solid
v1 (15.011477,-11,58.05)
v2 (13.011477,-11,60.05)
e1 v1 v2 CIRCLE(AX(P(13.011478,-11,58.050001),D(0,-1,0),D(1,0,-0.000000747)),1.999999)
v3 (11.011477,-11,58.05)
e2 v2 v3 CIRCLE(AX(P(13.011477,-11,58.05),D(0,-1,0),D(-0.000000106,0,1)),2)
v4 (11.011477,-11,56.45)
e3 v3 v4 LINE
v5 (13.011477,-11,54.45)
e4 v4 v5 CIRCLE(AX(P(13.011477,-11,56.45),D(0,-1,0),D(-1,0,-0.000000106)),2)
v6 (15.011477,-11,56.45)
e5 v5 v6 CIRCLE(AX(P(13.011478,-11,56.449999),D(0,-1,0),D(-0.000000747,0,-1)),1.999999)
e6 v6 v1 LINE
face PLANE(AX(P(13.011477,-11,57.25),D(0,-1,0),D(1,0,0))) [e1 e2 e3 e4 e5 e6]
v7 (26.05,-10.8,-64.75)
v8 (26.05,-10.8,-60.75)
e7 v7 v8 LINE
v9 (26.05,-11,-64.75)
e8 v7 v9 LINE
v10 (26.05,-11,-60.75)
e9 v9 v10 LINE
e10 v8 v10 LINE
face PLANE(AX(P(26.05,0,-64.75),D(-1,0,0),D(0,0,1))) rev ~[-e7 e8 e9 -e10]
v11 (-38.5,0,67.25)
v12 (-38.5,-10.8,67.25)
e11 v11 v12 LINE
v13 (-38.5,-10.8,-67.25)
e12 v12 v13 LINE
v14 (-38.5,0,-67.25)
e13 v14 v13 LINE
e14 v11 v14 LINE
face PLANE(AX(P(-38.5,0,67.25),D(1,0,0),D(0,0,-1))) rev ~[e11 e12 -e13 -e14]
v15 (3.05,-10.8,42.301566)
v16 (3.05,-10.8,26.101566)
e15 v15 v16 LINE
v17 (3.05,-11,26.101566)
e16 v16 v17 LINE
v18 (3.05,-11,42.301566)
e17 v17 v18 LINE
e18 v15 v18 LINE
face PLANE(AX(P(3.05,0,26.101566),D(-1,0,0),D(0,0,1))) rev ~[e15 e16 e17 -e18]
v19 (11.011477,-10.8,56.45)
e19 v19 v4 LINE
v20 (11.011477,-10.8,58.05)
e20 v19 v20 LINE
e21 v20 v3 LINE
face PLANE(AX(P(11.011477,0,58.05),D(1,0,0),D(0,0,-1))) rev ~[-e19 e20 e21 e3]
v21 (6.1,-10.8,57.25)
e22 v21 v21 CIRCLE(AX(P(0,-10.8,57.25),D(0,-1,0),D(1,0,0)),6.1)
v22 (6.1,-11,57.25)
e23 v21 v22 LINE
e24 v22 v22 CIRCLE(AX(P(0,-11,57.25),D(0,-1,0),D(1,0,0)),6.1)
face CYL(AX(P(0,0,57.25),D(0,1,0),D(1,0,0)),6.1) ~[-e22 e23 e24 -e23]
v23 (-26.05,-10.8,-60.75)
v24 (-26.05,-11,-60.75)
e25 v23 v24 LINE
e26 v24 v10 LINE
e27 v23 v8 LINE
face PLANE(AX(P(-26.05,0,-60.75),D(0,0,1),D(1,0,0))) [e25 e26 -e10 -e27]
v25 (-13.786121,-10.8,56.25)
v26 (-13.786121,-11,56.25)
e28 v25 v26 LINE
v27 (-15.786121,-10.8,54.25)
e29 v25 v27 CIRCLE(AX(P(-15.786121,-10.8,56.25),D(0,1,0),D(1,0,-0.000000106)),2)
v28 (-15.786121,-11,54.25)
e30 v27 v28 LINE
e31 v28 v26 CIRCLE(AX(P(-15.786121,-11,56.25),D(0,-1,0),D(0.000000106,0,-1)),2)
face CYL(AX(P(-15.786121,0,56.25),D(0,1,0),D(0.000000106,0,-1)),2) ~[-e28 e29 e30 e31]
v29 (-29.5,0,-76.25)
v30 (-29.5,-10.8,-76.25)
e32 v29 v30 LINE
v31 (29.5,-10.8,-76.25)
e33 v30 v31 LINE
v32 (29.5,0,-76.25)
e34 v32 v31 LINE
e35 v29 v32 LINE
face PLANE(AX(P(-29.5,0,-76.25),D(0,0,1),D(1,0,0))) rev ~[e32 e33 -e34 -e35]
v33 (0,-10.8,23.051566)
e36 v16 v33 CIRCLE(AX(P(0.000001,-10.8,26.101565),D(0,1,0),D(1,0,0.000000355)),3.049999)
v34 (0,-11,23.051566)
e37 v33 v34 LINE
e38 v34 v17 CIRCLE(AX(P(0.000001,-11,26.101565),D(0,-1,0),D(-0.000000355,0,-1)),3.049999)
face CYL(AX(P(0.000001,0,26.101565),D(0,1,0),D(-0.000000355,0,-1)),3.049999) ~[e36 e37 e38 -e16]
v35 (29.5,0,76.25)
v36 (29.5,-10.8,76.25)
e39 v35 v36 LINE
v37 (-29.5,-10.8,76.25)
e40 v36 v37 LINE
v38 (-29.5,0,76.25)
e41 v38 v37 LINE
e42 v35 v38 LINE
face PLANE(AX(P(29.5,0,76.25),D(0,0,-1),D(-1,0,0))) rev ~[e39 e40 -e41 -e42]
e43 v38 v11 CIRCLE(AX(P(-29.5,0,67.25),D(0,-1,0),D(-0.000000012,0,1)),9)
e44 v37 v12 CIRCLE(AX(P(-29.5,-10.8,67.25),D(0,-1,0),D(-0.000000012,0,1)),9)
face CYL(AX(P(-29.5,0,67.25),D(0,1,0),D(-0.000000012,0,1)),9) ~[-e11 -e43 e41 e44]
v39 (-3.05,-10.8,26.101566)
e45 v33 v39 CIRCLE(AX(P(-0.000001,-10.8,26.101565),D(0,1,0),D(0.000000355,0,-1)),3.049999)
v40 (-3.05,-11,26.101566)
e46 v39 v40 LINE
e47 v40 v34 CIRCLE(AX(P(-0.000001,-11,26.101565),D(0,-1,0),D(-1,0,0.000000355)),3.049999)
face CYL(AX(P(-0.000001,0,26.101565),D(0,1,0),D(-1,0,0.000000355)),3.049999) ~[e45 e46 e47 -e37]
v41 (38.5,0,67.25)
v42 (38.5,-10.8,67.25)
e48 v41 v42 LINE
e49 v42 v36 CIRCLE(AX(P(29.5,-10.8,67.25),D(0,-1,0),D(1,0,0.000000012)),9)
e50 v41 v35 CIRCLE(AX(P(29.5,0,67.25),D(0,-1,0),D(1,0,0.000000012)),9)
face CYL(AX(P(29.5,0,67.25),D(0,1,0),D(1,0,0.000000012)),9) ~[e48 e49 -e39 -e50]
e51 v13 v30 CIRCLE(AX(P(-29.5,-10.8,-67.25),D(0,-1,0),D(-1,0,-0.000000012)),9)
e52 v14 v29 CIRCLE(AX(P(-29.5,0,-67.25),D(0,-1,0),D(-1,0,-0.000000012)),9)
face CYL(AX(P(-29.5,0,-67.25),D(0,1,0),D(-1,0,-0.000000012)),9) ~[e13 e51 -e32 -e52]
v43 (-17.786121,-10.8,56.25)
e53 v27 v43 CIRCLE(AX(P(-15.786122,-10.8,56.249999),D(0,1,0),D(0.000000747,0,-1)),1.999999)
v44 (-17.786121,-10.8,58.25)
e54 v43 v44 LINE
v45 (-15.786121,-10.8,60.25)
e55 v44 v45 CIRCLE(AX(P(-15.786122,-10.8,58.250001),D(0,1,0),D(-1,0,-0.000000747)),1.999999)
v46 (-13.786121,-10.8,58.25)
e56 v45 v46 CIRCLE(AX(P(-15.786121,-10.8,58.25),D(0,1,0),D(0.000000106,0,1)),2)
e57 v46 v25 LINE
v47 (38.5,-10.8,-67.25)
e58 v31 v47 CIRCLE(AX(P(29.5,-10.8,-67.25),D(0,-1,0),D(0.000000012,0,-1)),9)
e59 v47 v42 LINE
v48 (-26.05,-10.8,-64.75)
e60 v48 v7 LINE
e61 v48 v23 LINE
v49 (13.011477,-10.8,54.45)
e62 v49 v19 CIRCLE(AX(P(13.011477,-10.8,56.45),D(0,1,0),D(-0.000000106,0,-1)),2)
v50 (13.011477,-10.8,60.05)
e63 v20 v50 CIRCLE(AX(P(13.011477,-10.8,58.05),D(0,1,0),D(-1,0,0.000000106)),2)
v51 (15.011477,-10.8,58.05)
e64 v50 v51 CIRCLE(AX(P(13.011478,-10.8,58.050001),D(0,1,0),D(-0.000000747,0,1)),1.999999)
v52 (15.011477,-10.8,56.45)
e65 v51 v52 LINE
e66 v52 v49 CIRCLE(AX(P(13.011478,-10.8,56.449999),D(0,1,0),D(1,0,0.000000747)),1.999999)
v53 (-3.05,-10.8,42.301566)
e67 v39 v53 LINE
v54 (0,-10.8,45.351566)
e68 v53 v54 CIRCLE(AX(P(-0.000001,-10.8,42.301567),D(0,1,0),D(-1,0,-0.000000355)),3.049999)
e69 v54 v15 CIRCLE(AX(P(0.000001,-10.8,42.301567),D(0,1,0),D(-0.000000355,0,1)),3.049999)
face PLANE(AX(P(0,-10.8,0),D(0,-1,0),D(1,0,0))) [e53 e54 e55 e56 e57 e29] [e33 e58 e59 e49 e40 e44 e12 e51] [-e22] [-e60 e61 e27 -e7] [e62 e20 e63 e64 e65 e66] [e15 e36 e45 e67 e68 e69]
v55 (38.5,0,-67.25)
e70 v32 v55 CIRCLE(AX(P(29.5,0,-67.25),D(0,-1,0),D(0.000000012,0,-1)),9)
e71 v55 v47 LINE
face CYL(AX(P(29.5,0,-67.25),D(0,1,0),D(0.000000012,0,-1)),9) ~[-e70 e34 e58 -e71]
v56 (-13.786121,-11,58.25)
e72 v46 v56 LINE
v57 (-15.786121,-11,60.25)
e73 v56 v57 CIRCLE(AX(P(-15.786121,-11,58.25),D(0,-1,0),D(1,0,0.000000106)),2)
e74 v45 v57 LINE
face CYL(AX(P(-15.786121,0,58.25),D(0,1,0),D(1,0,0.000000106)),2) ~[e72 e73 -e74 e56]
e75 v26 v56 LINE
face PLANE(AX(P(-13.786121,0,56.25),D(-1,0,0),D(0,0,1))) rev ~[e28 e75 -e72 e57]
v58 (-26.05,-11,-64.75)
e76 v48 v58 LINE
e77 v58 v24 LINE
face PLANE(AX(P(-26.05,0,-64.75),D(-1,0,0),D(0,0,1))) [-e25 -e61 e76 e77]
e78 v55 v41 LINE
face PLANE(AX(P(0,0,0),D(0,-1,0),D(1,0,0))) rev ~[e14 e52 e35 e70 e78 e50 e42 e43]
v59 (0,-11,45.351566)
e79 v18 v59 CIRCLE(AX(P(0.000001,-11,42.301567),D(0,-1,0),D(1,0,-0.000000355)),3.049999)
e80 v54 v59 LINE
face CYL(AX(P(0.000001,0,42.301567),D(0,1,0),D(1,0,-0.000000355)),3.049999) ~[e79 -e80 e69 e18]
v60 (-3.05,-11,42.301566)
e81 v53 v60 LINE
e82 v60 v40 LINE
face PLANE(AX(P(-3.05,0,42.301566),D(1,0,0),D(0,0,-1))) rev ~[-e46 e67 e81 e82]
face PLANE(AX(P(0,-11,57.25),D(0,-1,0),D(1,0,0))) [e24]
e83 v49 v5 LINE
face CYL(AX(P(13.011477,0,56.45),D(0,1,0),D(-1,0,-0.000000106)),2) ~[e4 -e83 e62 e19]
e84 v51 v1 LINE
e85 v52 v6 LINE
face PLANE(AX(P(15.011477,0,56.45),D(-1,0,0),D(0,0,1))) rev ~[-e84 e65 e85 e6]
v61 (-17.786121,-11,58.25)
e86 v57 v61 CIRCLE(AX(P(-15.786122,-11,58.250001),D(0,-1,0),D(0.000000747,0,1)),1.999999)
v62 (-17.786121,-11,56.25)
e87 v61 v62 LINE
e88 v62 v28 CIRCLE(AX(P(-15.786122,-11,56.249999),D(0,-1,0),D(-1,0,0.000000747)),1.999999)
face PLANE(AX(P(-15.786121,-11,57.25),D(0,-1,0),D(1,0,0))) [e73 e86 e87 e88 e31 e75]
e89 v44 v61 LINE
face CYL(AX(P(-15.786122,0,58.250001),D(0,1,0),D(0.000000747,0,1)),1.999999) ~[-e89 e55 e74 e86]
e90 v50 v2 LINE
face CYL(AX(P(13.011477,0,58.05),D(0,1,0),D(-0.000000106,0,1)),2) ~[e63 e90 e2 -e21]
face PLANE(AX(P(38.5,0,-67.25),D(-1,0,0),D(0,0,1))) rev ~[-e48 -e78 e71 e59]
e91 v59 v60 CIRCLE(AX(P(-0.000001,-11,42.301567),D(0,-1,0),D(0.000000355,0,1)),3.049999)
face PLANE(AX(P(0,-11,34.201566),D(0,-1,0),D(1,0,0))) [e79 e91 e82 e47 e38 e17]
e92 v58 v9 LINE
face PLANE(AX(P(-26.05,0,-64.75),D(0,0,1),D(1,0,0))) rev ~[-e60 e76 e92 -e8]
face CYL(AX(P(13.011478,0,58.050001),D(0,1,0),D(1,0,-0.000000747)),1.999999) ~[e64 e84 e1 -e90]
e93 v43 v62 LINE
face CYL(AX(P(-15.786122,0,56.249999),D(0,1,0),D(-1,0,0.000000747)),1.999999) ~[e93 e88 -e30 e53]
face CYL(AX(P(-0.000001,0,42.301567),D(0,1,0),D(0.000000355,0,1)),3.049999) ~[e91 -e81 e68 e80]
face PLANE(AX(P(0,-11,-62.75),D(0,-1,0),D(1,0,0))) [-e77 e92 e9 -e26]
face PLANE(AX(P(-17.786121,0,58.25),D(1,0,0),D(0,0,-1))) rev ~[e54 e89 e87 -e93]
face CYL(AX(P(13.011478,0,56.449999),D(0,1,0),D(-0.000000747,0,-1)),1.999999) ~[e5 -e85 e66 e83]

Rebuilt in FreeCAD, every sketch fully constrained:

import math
import FreeCAD as App
import Part
import Sketcher
from FreeCAD import Vector


def add_polygon(sketch, points):
    """Adds a closed chain of lines whose ends are joined by coincident constraints."""
    first, n = sketch.GeometryCount, len(points)
    for a, b in zip(points, points[1:] + points[:1]):
        sketch.addGeometry(Part.LineSegment(App.Vector(*a, 0), App.Vector(*b, 0)), False)
    for i in range(n):
        sketch.addConstraint(Sketcher.Constraint("Coincident", first + i, 2, first + (i + 1) % n, 1))

doc = App.newDocument("Part")
body = doc.addObject("PartDesign::Body", "Body")

# Sketch on XZ plane
sketch1 = body.newObject("Sketcher::SketchObject", "Sketch")
sketch1.AttachmentSupport = (doc.getObject("XZ_Plane"), [""])
sketch1.MapMode = "FlatFace"
sketch1.addGeometry(Part.LineSegment(Vector(-29.5, -76.2, 0), Vector(29.5, -76.2, 0)), False)  # 0
sketch1.addGeometry(Part.ArcOfCircle(Part.Circle(Vector(29.5, -67.2, 0), Vector(0, 0, 1), 9), math.radians(-90), math.radians(0)), False)  # 1
sketch1.addGeometry(Part.LineSegment(Vector(38.5, -67.2, 0), Vector(38.5, 67.2, 0)), False)  # 2
sketch1.addGeometry(Part.ArcOfCircle(Part.Circle(Vector(29.5, 67.2, 0), Vector(0, 0, 1), 9), math.radians(0), math.radians(90)), False)  # 3
sketch1.addGeometry(Part.LineSegment(Vector(29.5, 76.2, 0), Vector(-29.5, 76.2, 0)), False)  # 4
sketch1.addGeometry(Part.ArcOfCircle(Part.Circle(Vector(-29.5, 67.2, 0), Vector(0, 0, 1), 9), math.radians(90), math.radians(180)), False)  # 5
sketch1.addGeometry(Part.LineSegment(Vector(-38.5, 67.2, 0), Vector(-38.5, -67.2, 0)), False)  # 6
sketch1.addGeometry(Part.ArcOfCircle(Part.Circle(Vector(-29.5, -67.2, 0), Vector(0, 0, 1), 9), math.radians(-180), math.radians(-90)), False)  # 7
add_polygon(sketch1, [(26.1, -64.8), (-26.1, -64.8), (-26.1, -60.8), (26.1, -60.8)])  # lines 8-11
sketch1.addGeometry(Part.ArcOfCircle(Part.Circle(Vector(-15.8, 58.2, 0), Vector(0, 0, 1), 2), math.radians(0), math.radians(90)), False)  # 12
sketch1.addGeometry(Part.LineSegment(Vector(-13.8, 58.2, 0), Vector(-13.8, 56.2, 0)), False)  # 13
sketch1.addGeometry(Part.ArcOfCircle(Part.Circle(Vector(-15.8, 56.3, 0), Vector(0, 0, 1), 2), math.radians(-90), math.radians(0)), False)  # 14
sketch1.addGeometry(Part.ArcOfCircle(Part.Circle(Vector(-15.8, 56.2, 0), Vector(0, 0, 1), 2), math.radians(180), math.radians(270)), False)  # 15
sketch1.addGeometry(Part.LineSegment(Vector(-17.8, 56.2, 0), Vector(-17.8, 58.2, 0)), False)  # 16
sketch1.addGeometry(Part.ArcOfCircle(Part.Circle(Vector(-15.8, 58.3, 0), Vector(0, 0, 1), 2), math.radians(90), math.radians(180)), False)  # 17
sketch1.addGeometry(Part.ArcOfCircle(Part.Circle(Vector(0, 42.3, 0), Vector(0, 0, 1), 3), math.radians(0), math.radians(90)), False)  # 18
sketch1.addGeometry(Part.LineSegment(Vector(3, 42.3, 0), Vector(3, 26.1, 0)), False)  # 19
sketch1.addGeometry(Part.ArcOfCircle(Part.Circle(Vector(0, 26.1, 0), Vector(0, 0, 1), 3), math.radians(-90), math.radians(0)), False)  # 20
sketch1.addGeometry(Part.ArcOfCircle(Part.Circle(Vector(0, 26.1, 0), Vector(0, 0, 1), 3), math.radians(180), math.radians(270)), False)  # 21
sketch1.addGeometry(Part.LineSegment(Vector(-3, 26.1, 0), Vector(-3, 42.3, 0)), False)  # 22
sketch1.addGeometry(Part.ArcOfCircle(Part.Circle(Vector(0, 42.3, 0), Vector(0, 0, 1), 3), math.radians(90), math.radians(180)), False)  # 23
sketch1.addGeometry(Part.Circle(Vector(0, 57.2, 0), Vector(0, 0, 1), 6.1), False)  # 24
sketch1.addGeometry(Part.ArcOfCircle(Part.Circle(Vector(13, 58.1, 0), Vector(0, 0, 1), 2), math.radians(0), math.radians(90)), False)  # 25
sketch1.addGeometry(Part.LineSegment(Vector(15, 58, 0), Vector(15, 56.5, 0)), False)  # 26
sketch1.addGeometry(Part.ArcOfCircle(Part.Circle(Vector(13, 56.4, 0), Vector(0, 0, 1), 2), math.radians(-90), math.radians(0)), False)  # 27
sketch1.addGeometry(Part.ArcOfCircle(Part.Circle(Vector(13, 56.5, 0), Vector(0, 0, 1), 2), math.radians(-180), math.radians(-90)), False)  # 28
sketch1.addGeometry(Part.LineSegment(Vector(11, 56.5, 0), Vector(11, 58, 0)), False)  # 29
sketch1.addGeometry(Part.ArcOfCircle(Part.Circle(Vector(13, 58, 0), Vector(0, 0, 1), 2), math.radians(90), math.radians(180)), False)  # 30
sketch1.addConstraint([
    Sketcher.Constraint("Tangent", 0, 2, 1, 1),
    Sketcher.Constraint("Tangent", 1, 2, 2, 1),
    Sketcher.Constraint("Tangent", 2, 2, 3, 1),
    Sketcher.Constraint("Tangent", 3, 2, 4, 1),
    Sketcher.Constraint("Tangent", 4, 2, 5, 1),
    Sketcher.Constraint("Tangent", 5, 2, 6, 1),
    Sketcher.Constraint("Tangent", 6, 2, 7, 1),
    Sketcher.Constraint("Tangent", 7, 2, 0, 1),
    Sketcher.Constraint("Tangent", 12, 1, 13, 1),
    Sketcher.Constraint("Tangent", 13, 2, 14, 2),
    Sketcher.Constraint("Tangent", 14, 1, 15, 2),
    Sketcher.Constraint("Tangent", 15, 1, 16, 1),
    Sketcher.Constraint("Tangent", 16, 2, 17, 2),
    Sketcher.Constraint("Tangent", 17, 1, 12, 2),
    Sketcher.Constraint("Tangent", 18, 1, 19, 1),
    Sketcher.Constraint("Tangent", 19, 2, 20, 2),
    Sketcher.Constraint("Tangent", 20, 1, 21, 2),
    Sketcher.Constraint("Tangent", 21, 1, 22, 1),
    Sketcher.Constraint("Tangent", 22, 2, 23, 2),
    Sketcher.Constraint("Tangent", 23, 1, 18, 2),
    Sketcher.Constraint("Tangent", 25, 1, 26, 1),
    Sketcher.Constraint("Tangent", 26, 2, 27, 2),
    Sketcher.Constraint("Tangent", 27, 1, 28, 2),
    Sketcher.Constraint("Tangent", 28, 1, 29, 1),
    Sketcher.Constraint("Tangent", 29, 2, 30, 2),
    Sketcher.Constraint("Tangent", 30, 1, 25, 2),
    Sketcher.Constraint("Horizontal", 0),
    Sketcher.Constraint("Vertical", 2),
    Sketcher.Constraint("Horizontal", 4),
    Sketcher.Constraint("Vertical", 6),
    Sketcher.Constraint("Horizontal", 8),
    Sketcher.Constraint("Vertical", 9),
    Sketcher.Constraint("Horizontal", 10),
    Sketcher.Constraint("Vertical", 11),
    Sketcher.Constraint("Vertical", 13),
    Sketcher.Constraint("Vertical", 16),
    Sketcher.Constraint("Vertical", 19),
    Sketcher.Constraint("Vertical", 22),
    Sketcher.Constraint("Vertical", 26),
    Sketcher.Constraint("Vertical", 29),
    Sketcher.Constraint("Equal", 1, 3),
    Sketcher.Constraint("Equal", 3, 5),
    Sketcher.Constraint("Equal", 5, 7),
    Sketcher.Constraint("Equal", 12, 14),
    Sketcher.Constraint("Equal", 14, 15),
    Sketcher.Constraint("Equal", 18, 20),
    Sketcher.Constraint("Equal", 20, 21),
    Sketcher.Constraint("Equal", 17, 25),
    Sketcher.Constraint("Equal", 25, 27),
    Sketcher.Constraint("Equal", 27, 28),
    Sketcher.Constraint("Symmetric", 1, 3, 5, 3, -1, 1),
    Sketcher.Constraint("PointOnObject", 18, 3, -2),
    Sketcher.Constraint("PointOnObject", 24, 3, -2),
    Sketcher.Constraint("PointOnObject", 20, 1, -2),
    Sketcher.Constraint("PointOnObject", 23, 1, -2),
    Sketcher.Constraint("Vertical", 17, 3, 14, 1),
    Sketcher.Constraint("Vertical", 14, 1, 17, 1),
    Sketcher.Constraint("Vertical", 30, 3, 27, 1),
    Sketcher.Constraint("Vertical", 27, 1, 30, 1),
    Sketcher.Constraint("Radius", 1, 9.0),
    Sketcher.Constraint("Radius", 12, 2.0),
    Sketcher.Constraint("Diameter", 24, 12.2),
    Sketcher.Constraint("DistanceX", 0, 1, 0, 2, 59.0),
    Sketcher.Constraint("DistanceY", 9, 1, 9, 2, 4.0),
    Sketcher.Constraint("DistanceY", 13, 2, 13, 1, 2.0),
    Sketcher.Constraint("Radius", 18, 3.049999),
    Sketcher.Constraint("DistanceX", 8, 2, 8, 1, 52.1),
    Sketcher.Constraint("DistanceY", 2, 1, 2, 2, 134.5),
    Sketcher.Constraint("DistanceY", 19, 2, 19, 1, 16.2),
    Sketcher.Constraint("DistanceY", 26, 2, 26, 1, 1.6),
    Sketcher.Constraint("DistanceY", 12, 3, 5, 3, 9.0),
    Sketcher.Constraint("DistanceY", 24, 3, 12, 3, 1.0),
    Sketcher.Constraint("DistanceY", 24, 3, 25, 3, 0.800001),
    Sketcher.Constraint("DistanceY", 7, 3, 8, 2, 2.5),
    Sketcher.Constraint("DistanceX", 8, 2, -1, 1, 26.05),
    Sketcher.Constraint("DistanceX", 12, 3, 25, 3, 28.7976),
    Sketcher.Constraint("DistanceX", 12, 3, -1, 1, 15.786121),
    Sketcher.Constraint("DistanceY", 18, 3, 15, 3, 13.948431),
])
pad1 = body.newObject("PartDesign::Pad", "Pad")
pad1.Profile = sketch1
pad1.Length = 10.8

# Sketch on XZ plane
sketch2 = body.newObject("Sketcher::SketchObject", "Sketch001")
sketch2.AttachmentSupport = (doc.getObject("XZ_Plane"), [""])
sketch2.MapMode = "FlatFace"
sketch2.addGeometry(Part.Circle(Vector(0, 57.2, 0), Vector(0, 0, 1), 6.1), False)  # 0
sketch2.addGeometry(Part.ArcOfCircle(Part.Circle(Vector(-15.8, 56.3, 0), Vector(0, 0, 1), 2), math.radians(-90), math.radians(0)), False)  # 1
sketch2.addGeometry(Part.LineSegment(Vector(-13.8, 56.2, 0), Vector(-13.8, 58.2, 0)), False)  # 2
sketch2.addGeometry(Part.ArcOfCircle(Part.Circle(Vector(-15.8, 58.2, 0), Vector(0, 0, 1), 2), math.radians(0), math.radians(90)), False)  # 3
sketch2.addGeometry(Part.ArcOfCircle(Part.Circle(Vector(-15.8, 58.3, 0), Vector(0, 0, 1), 2), math.radians(90), math.radians(180)), False)  # 4
sketch2.addGeometry(Part.LineSegment(Vector(-17.8, 58.2, 0), Vector(-17.8, 56.2, 0)), False)  # 5
sketch2.addGeometry(Part.ArcOfCircle(Part.Circle(Vector(-15.8, 56.2, 0), Vector(0, 0, 1), 2), math.radians(180), math.radians(270)), False)  # 6
sketch2.addGeometry(Part.ArcOfCircle(Part.Circle(Vector(13, 56.4, 0), Vector(0, 0, 1), 2), math.radians(-90), math.radians(0)), False)  # 7
sketch2.addGeometry(Part.LineSegment(Vector(15, 56.5, 0), Vector(15, 58, 0)), False)  # 8
sketch2.addGeometry(Part.ArcOfCircle(Part.Circle(Vector(13, 58.1, 0), Vector(0, 0, 1), 2), math.radians(0), math.radians(90)), False)  # 9
sketch2.addGeometry(Part.ArcOfCircle(Part.Circle(Vector(13, 58, 0), Vector(0, 0, 1), 2), math.radians(90), math.radians(180)), False)  # 10
sketch2.addGeometry(Part.LineSegment(Vector(11, 58, 0), Vector(11, 56.5, 0)), False)  # 11
sketch2.addGeometry(Part.ArcOfCircle(Part.Circle(Vector(13, 56.5, 0), Vector(0, 0, 1), 2), math.radians(-180), math.radians(-90)), False)  # 12
sketch2.addGeometry(Part.ArcOfCircle(Part.Circle(Vector(0, 26.1, 0), Vector(0, 0, 1), 3), math.radians(-90), math.radians(0)), False)  # 13
sketch2.addGeometry(Part.LineSegment(Vector(3, 26.1, 0), Vector(3, 42.3, 0)), False)  # 14
sketch2.addGeometry(Part.ArcOfCircle(Part.Circle(Vector(0, 42.3, 0), Vector(0, 0, 1), 3), math.radians(0), math.radians(90)), False)  # 15
sketch2.addGeometry(Part.ArcOfCircle(Part.Circle(Vector(0, 42.3, 0), Vector(0, 0, 1), 3), math.radians(90), math.radians(180)), False)  # 16
sketch2.addGeometry(Part.LineSegment(Vector(-3, 42.3, 0), Vector(-3, 26.1, 0)), False)  # 17
sketch2.addGeometry(Part.ArcOfCircle(Part.Circle(Vector(0, 26.1, 0), Vector(0, 0, 1), 3), math.radians(180), math.radians(270)), False)  # 18
add_polygon(sketch2, [(-26.1, -60.8), (-26.1, -64.8), (26.1, -64.8), (26.1, -60.8)])  # lines 19-22
sketch2.addConstraint([
    Sketcher.Constraint("Tangent", 1, 2, 2, 1),
    Sketcher.Constraint("Tangent", 2, 2, 3, 1),
    Sketcher.Constraint("Tangent", 3, 2, 4, 1),
    Sketcher.Constraint("Tangent", 4, 2, 5, 1),
    Sketcher.Constraint("Tangent", 5, 2, 6, 1),
    Sketcher.Constraint("Tangent", 6, 2, 1, 1),
    Sketcher.Constraint("Tangent", 7, 2, 8, 1),
    Sketcher.Constraint("Tangent", 8, 2, 9, 1),
    Sketcher.Constraint("Tangent", 9, 2, 10, 1),
    Sketcher.Constraint("Tangent", 10, 2, 11, 1),
    Sketcher.Constraint("Tangent", 11, 2, 12, 1),
    Sketcher.Constraint("Tangent", 12, 2, 7, 1),
    Sketcher.Constraint("Tangent", 13, 2, 14, 1),
    Sketcher.Constraint("Tangent", 14, 2, 15, 1),
    Sketcher.Constraint("Tangent", 15, 2, 16, 1),
    Sketcher.Constraint("Tangent", 16, 2, 17, 1),
    Sketcher.Constraint("Tangent", 17, 2, 18, 1),
    Sketcher.Constraint("Tangent", 18, 2, 13, 1),
    Sketcher.Constraint("Vertical", 2),
    Sketcher.Constraint("Vertical", 5),
    Sketcher.Constraint("Vertical", 8),
    Sketcher.Constraint("Vertical", 11),
    Sketcher.Constraint("Vertical", 14),
    Sketcher.Constraint("Vertical", 17),
    Sketcher.Constraint("Vertical", 19),
    Sketcher.Constraint("Horizontal", 20),
    Sketcher.Constraint("Vertical", 21),
    Sketcher.Constraint("Horizontal", 22),
    Sketcher.Constraint("Equal", 1, 3),
    Sketcher.Constraint("Equal", 3, 4),
    Sketcher.Constraint("Equal", 6, 7),
    Sketcher.Constraint("Equal", 7, 9),
    Sketcher.Constraint("Equal", 9, 10),
    Sketcher.Constraint("Equal", 13, 15),
    Sketcher.Constraint("Equal", 15, 16),
    Sketcher.Constraint("PointOnObject", 0, 3, -2),
    Sketcher.Constraint("PointOnObject", 13, 3, -2),
    Sketcher.Constraint("PointOnObject", 15, 2, -2),
    Sketcher.Constraint("PointOnObject", 18, 2, -2),
    Sketcher.Constraint("Vertical", 6, 3, 3, 2),
    Sketcher.Constraint("Vertical", 3, 2, 6, 2),
    Sketcher.Constraint("Vertical", 12, 3, 9, 2),
    Sketcher.Constraint("Vertical", 9, 2, 12, 2),
    Sketcher.Constraint("Radius", 1, 2.0),
    Sketcher.Constraint("Diameter", 0, 12.2),
    Sketcher.Constraint("DistanceY", 2, 1, 2, 2, 2.0),
    Sketcher.Constraint("DistanceY", 19, 2, 19, 1, 4.0),
    Sketcher.Constraint("Radius", 13, 3.049999),
    Sketcher.Constraint("DistanceX", 20, 1, 20, 2, 52.1),
    Sketcher.Constraint("DistanceY", 8, 1, 8, 2, 1.6),
    Sketcher.Constraint("DistanceY", 14, 1, 14, 2, 16.2),
    Sketcher.Constraint("DistanceY", 1, 3, 0, 3, 1.0),
    Sketcher.Constraint("DistanceX", 19, 2, 17, 2, 23.0),
    Sketcher.Constraint("DistanceY", 7, 3, 0, 3, 0.800001),
    Sketcher.Constraint("DistanceY", -1, 1, 0, 3, 57.25),
    Sketcher.Constraint("DistanceY", 19, 2, -1, 1, 64.75),
    Sketcher.Constraint("DistanceX", 1, 3, 7, 3, 28.7976),
    Sketcher.Constraint("DistanceX", 1, 3, -1, 1, 15.786121),
    Sketcher.Constraint("DistanceY", 15, 3, 7, 3, 14.148431),
])
pad2 = body.newObject("PartDesign::Pad", "Pad001")
pad2.Profile = sketch2
pad2.Length = 11

doc.recompute()
